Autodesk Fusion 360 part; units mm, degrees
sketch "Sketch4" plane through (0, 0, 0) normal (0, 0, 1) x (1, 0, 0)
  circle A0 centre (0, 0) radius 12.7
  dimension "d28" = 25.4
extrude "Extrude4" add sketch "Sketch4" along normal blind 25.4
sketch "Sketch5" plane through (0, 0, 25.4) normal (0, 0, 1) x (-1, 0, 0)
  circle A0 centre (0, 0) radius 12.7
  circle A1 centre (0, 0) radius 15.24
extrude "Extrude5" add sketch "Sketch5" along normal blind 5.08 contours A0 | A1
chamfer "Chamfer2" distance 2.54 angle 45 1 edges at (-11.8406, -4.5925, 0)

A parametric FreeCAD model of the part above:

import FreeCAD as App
import Part
import Sketcher

V = App.Vector
Q = App.Units.Quantity


def edges_at(feature, points):
    """Names of the edges that pass closest to the given points."""
    edges = feature.Shape.Edges
    near = lambda p: min(range(len(edges)), key=lambda i: edges[i].distToShape(Part.Vertex(*p))[0])
    return sorted({f"Edge{near(p) + 1}" for p in points})

doc = App.newDocument("Part")
body = doc.addObject("PartDesign::Body", "Body")

# Sketch on XY plane
sketch1 = body.newObject("Sketcher::SketchObject", "Sketch")
sketch1.AttachmentSupport = (doc.getObject("XY_Plane"), [""])
sketch1.MapMode = "FlatFace"
sketch1.addGeometry(Part.Circle(V(0, 0, 0), V(0, 0, 1), 13), False)
sketch1.addConstraint([
    Sketcher.Constraint("Coincident", 0, 3, -1, 1),
    Sketcher.Constraint("Diameter", 0, Q("1 in")),
])
pad1 = body.newObject("PartDesign::Pad", "Pad")
pad1.Profile = sketch1
pad1.Length = Q("1 in")

# Sketch on XY plane
sketch2 = body.newObject("Sketcher::SketchObject", "Sketch001")
sketch2.AttachmentSupport = (doc.getObject("XY_Plane"), [""])
sketch2.MapMode = "FlatFace"
sketch2.AttachmentOffset = App.Placement(V(0, 0, 1 * 25.4), App.Rotation())
sketch2.addGeometry(Part.Circle(V(0, 0, 0), V(0, 0, 1), 15), False)
sketch2.addConstraint([
    Sketcher.Constraint("Coincident", 0, 3, -1, 1),
    Sketcher.Constraint("Diameter", 0, Q("1.2 in")),
])
pad2 = body.newObject("PartDesign::Pad", "Pad001")
pad2.Profile = sketch2
pad2.Length = Q("0.2 in")
doc.recompute()

chamfer = body.newObject("PartDesign::Chamfer", "Chamfer")
chamfer.Base = (pad2, edges_at(pad2, [(-11.841, -4.593, 0)]))
chamfer.Size = Q("0.1 in")

doc.recompute()
